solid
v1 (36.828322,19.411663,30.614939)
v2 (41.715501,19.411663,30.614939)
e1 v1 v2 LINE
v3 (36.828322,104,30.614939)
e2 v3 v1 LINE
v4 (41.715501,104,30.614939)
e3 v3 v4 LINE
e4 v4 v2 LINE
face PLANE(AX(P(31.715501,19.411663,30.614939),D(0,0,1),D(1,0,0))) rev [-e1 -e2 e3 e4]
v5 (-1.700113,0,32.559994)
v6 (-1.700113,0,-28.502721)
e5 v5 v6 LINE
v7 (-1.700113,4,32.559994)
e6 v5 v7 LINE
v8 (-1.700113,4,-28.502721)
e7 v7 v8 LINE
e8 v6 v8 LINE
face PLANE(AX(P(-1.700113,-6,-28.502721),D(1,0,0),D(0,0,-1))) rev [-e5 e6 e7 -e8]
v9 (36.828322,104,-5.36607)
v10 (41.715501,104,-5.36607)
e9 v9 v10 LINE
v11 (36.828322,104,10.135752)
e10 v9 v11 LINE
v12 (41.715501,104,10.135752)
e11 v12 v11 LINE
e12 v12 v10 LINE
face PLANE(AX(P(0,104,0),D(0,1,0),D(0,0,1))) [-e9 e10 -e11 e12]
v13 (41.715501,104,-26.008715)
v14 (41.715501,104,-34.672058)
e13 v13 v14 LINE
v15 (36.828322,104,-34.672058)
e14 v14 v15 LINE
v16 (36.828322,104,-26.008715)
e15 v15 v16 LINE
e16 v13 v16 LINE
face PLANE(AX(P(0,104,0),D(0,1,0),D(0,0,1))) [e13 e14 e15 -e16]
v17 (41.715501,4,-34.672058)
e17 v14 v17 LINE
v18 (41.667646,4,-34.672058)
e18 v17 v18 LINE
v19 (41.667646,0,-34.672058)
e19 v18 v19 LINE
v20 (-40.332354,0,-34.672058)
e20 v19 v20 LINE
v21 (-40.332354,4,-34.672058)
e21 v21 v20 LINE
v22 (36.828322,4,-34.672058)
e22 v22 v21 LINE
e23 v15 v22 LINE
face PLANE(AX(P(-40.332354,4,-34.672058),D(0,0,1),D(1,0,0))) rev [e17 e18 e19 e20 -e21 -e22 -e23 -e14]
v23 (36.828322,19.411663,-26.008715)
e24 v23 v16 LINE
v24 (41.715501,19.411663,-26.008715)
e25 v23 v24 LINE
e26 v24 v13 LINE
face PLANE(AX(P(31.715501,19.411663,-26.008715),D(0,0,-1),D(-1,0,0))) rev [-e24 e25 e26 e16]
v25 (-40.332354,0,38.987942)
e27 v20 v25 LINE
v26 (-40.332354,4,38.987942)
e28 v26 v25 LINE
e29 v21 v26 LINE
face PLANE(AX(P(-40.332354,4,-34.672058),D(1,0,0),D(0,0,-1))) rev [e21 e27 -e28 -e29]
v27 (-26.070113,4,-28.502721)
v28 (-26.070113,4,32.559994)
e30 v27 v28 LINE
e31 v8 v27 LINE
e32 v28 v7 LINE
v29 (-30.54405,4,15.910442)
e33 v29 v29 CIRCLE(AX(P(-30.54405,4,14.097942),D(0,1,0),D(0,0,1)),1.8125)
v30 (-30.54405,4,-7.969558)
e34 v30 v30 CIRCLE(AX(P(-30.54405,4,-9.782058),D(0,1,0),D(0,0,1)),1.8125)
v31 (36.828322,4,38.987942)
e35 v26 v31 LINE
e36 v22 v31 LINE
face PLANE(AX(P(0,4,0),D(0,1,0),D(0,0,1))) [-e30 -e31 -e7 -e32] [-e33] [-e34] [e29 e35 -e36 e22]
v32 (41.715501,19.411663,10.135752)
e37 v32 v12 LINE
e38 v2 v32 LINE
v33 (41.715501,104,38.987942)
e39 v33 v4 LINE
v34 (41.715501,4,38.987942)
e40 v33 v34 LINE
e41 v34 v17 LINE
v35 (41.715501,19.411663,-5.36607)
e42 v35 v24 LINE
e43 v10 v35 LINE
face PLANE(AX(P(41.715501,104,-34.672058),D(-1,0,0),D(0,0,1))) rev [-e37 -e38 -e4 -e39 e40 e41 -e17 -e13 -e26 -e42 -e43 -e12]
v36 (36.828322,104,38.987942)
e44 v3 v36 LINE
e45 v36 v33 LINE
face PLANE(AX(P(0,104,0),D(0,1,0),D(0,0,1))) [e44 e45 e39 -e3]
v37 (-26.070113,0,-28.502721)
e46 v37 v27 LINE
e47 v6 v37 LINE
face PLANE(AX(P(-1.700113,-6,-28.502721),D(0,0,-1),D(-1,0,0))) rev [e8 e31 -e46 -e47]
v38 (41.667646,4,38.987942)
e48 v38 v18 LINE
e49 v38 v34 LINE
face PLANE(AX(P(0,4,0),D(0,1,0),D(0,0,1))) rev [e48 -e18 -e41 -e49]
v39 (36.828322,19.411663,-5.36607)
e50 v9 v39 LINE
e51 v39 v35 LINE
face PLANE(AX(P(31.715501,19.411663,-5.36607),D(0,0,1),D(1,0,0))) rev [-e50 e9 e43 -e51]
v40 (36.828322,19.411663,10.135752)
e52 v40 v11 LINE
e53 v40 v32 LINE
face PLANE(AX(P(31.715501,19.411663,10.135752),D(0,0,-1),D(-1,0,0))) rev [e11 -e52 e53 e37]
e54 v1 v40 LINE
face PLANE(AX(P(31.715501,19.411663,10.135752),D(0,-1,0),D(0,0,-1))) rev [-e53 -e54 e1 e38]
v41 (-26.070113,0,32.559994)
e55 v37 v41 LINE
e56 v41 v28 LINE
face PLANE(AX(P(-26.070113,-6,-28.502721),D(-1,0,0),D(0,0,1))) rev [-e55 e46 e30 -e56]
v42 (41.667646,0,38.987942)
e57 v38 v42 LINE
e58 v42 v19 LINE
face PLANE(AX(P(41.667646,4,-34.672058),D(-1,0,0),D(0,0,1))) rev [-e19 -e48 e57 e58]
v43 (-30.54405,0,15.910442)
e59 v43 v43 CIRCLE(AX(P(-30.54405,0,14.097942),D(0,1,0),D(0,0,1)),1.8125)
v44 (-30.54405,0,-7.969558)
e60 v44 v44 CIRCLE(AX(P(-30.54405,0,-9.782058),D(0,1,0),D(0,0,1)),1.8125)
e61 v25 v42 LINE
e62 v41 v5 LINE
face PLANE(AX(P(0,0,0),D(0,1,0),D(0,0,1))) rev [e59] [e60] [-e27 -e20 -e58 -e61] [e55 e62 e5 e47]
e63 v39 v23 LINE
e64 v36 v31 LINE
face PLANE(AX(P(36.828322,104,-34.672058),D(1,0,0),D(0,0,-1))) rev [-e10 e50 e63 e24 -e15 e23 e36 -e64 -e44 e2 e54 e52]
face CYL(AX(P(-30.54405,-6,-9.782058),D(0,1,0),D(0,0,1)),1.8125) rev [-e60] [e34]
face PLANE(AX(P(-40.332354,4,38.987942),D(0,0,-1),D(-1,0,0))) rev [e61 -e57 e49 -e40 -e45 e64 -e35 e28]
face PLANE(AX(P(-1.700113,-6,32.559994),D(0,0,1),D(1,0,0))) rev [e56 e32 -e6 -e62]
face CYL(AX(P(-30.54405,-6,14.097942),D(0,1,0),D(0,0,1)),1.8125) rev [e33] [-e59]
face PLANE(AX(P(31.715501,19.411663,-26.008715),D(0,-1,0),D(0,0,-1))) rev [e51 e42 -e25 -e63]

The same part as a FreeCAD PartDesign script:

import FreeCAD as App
import Part
import Sketcher

V = App.Vector

doc = App.newDocument("Part")
body = doc.addObject("PartDesign::Body", "Body")

# Sketch on XZ plane
sketch1 = body.newObject("Sketcher::SketchObject", "Sketch")
sketch1.AttachmentSupport = (doc.getObject("XZ_Plane"), [""])
sketch1.MapMode = "FlatFace"
sketch1.addGeometry(Part.LineSegment(V(-40, -35, 0), V(-40, 39, 0)), False)
sketch1.addGeometry(Part.LineSegment(V(-40, 39, 0), V(42, 39, 0)), False)
sketch1.addGeometry(Part.LineSegment(V(42, 39, 0), V(42, -35, 0)), False)
sketch1.addGeometry(Part.LineSegment(V(42, -35, 0), V(-40, -35, 0)), False)
sketch1.addConstraint(Sketcher.Constraint("Coincident", 0, 2, 1, 1))
sketch1.addConstraint(Sketcher.Constraint("Coincident", 1, 2, 2, 1))
sketch1.addConstraint(Sketcher.Constraint("Coincident", 2, 2, 3, 1))
sketch1.addConstraint(Sketcher.Constraint("Coincident", 3, 2, 0, 1))
sketch1.addConstraint(Sketcher.Constraint("Vertical", 0))
sketch1.addConstraint(Sketcher.Constraint("Horizontal", 1))
sketch1.addConstraint(Sketcher.Constraint("Vertical", 2))
sketch1.addConstraint(Sketcher.Constraint("Horizontal", 3))
sketch1.addConstraint(Sketcher.Constraint("DistanceX", 1, 1, 1, 2, 82.0))
sketch1.addConstraint(Sketcher.Constraint("DistanceY", 0, 1, 0, 2, 73.66))
sketch1.addConstraint(Sketcher.Constraint("DistanceY", -1, 1, 0, 2, 38.987942))
sketch1.addConstraint(Sketcher.Constraint("DistanceX", 0, 2, -1, 1, 40.332354))
pad1 = body.newObject("PartDesign::Pad", "Pad")
pad1.Profile = sketch1
pad1.Length = 4
pad1.Reversed = True

# Sketch on XZ plane
sketch2 = body.newObject("Sketcher::SketchObject", "Sketch001")
sketch2.AttachmentSupport = (doc.getObject("XZ_Plane"), [""])
sketch2.MapMode = "FlatFace"
sketch2.AttachmentOffset = App.Placement(V(0, 0, -4), App.Rotation())
sketch2.addGeometry(Part.LineSegment(V(36.8, -34.7, 0), V(36.8, 39, 0)), False)
sketch2.addGeometry(Part.LineSegment(V(36.8, 39, 0), V(41.7, 39, 0)), False)
sketch2.addGeometry(Part.LineSegment(V(41.7, 39, 0), V(41.7, -34.7, 0)), False)
sketch2.addGeometry(Part.LineSegment(V(41.7, -34.7, 0), V(36.8, -34.7, 0)), False)
sketch2.addConstraint(Sketcher.Constraint("Coincident", 0, 2, 1, 1))
sketch2.addConstraint(Sketcher.Constraint("Coincident", 1, 2, 2, 1))
sketch2.addConstraint(Sketcher.Constraint("Coincident", 2, 2, 3, 1))
sketch2.addConstraint(Sketcher.Constraint("Coincident", 3, 2, 0, 1))
sketch2.addConstraint(Sketcher.Constraint("Vertical", 0))
sketch2.addConstraint(Sketcher.Constraint("Horizontal", 1))
sketch2.addConstraint(Sketcher.Constraint("Vertical", 2))
sketch2.addConstraint(Sketcher.Constraint("Horizontal", 3))
sketch2.addConstraint(Sketcher.Constraint("DistanceY", 0, 1, 0, 2, 73.66))
sketch2.addConstraint(Sketcher.Constraint("DistanceX", 1, 1, 1, 2, 4.887179))
sketch2.addConstraint(Sketcher.Constraint("DistanceX", -1, 1, 1, 2, 41.715501))
sketch2.addConstraint(Sketcher.Constraint("DistanceY", -1, 1, 0, 2, 38.987942))
pad2 = body.newObject("PartDesign::Pad", "Pad001")
pad2.Profile = sketch2
pad2.Length = 100
pad2.Reversed = True

# Sketch on XZ plane
sketch3 = body.newObject("Sketcher::SketchObject", "Sketch002")
sketch3.AttachmentSupport = (doc.getObject("XZ_Plane"), [""])
sketch3.MapMode = "FlatFace"
sketch3.AttachmentOffset = App.Placement(V(0, 0, -4), App.Rotation())
sketch3.addGeometry(Part.Circle(V(-30.5, -9.8, 0), V(0, 0, 1), 1.8), False)
sketch3.addGeometry(Part.Circle(V(-30.5, 14.1, 0), V(0, 0, 1), 1.8), False)
sketch3.addConstraint(Sketcher.Constraint("Equal", 0, 1))
sketch3.addConstraint(Sketcher.Constraint("Vertical", 0, 3, 1, 3))
sketch3.addConstraint(Sketcher.Constraint("Diameter", 0, 3.625))
sketch3.addConstraint(Sketcher.Constraint("DistanceY", 0, 3, 1, 3, 23.88))
sketch3.addConstraint(Sketcher.Constraint("DistanceX", 0, 3, -1, 1, 30.54405))
sketch3.addConstraint(Sketcher.Constraint("DistanceY", 0, 3, -1, 1, 9.782058))
pocket1 = body.newObject("PartDesign::Pocket", "Pocket")
pocket1.Profile = sketch3
pocket1.Length = 10
pocket1.Reversed = True

# Sketch on XZ plane
sketch4 = body.newObject("Sketcher::SketchObject", "Sketch003")
sketch4.AttachmentSupport = (doc.getObject("XZ_Plane"), [""])
sketch4.MapMode = "FlatFace"
sketch4.AttachmentOffset = App.Placement(V(0, 0, -4), App.Rotation())
sketch4.addGeometry(Part.LineSegment(V(-26, -29, 0), V(-26, 33, 0)), False)
sketch4.addGeometry(Part.LineSegment(V(-26, 33, 0), V(-2, 33, 0)), False)
sketch4.addGeometry(Part.LineSegment(V(-2, 33, 0), V(-2, -29, 0)), False)
sketch4.addGeometry(Part.LineSegment(V(-2, -29, 0), V(-26, -29, 0)), False)
sketch4.addConstraint(Sketcher.Constraint("Coincident", 0, 2, 1, 1))
sketch4.addConstraint(Sketcher.Constraint("Coincident", 1, 2, 2, 1))
sketch4.addConstraint(Sketcher.Constraint("Coincident", 2, 2, 3, 1))
sketch4.addConstraint(Sketcher.Constraint("Coincident", 3, 2, 0, 1))
sketch4.addConstraint(Sketcher.Constraint("Vertical", 0))
sketch4.addConstraint(Sketcher.Constraint("Horizontal", 1))
sketch4.addConstraint(Sketcher.Constraint("Vertical", 2))
sketch4.addConstraint(Sketcher.Constraint("Horizontal", 3))
sketch4.addConstraint(Sketcher.Constraint("DistanceX", 1, 1, 1, 2, 24.37))
sketch4.addConstraint(Sketcher.Constraint("DistanceY", 0, 1, 0, 2, 61.062715))
sketch4.addConstraint(Sketcher.Constraint("DistanceY", 2, 2, -1, 1, 28.502721))
sketch4.addConstraint(Sketcher.Constraint("DistanceX", 0, 2, -1, 1, 26.070113))
pocket2 = body.newObject("PartDesign::Pocket", "Pocket001")
pocket2.Profile = sketch4
pocket2.Length = 10
pocket2.Reversed = True

# Sketch on YZ plane
sketch5 = body.newObject("Sketcher::SketchObject", "Sketch004")
sketch5.AttachmentSupport = (doc.getObject("YZ_Plane"), [""])
sketch5.MapMode = "FlatFace"
sketch5.AttachmentOffset = App.Placement(V(0, 0, 41.715501), App.Rotation())
sketch5.addGeometry(Part.LineSegment(V(121, -5, 0), V(19, -5, 0)), False)
sketch5.addGeometry(Part.LineSegment(V(19, -5, 0), V(19, -26, 0)), False)
sketch5.addGeometry(Part.LineSegment(V(19, -26, 0), V(121, -26, 0)), False)
sketch5.addGeometry(Part.LineSegment(V(121, -26, 0), V(121, -5, 0)), False)
sketch5.addGeometry(Part.LineSegment(V(120, 31, 0), V(19, 31, 0)), False)
sketch5.addGeometry(Part.LineSegment(V(19, 31, 0), V(19, 10, 0)), False)
sketch5.addGeometry(Part.LineSegment(V(19, 10, 0), V(120, 10, 0)), False)
sketch5.addGeometry(Part.LineSegment(V(120, 10, 0), V(120, 31, 0)), False)
sketch5.addConstraint(Sketcher.Constraint("Coincident", 0, 2, 1, 1))
sketch5.addConstraint(Sketcher.Constraint("Coincident", 1, 2, 2, 1))
sketch5.addConstraint(Sketcher.Constraint("Coincident", 2, 2, 3, 1))
sketch5.addConstraint(Sketcher.Constraint("Coincident", 3, 2, 0, 1))
sketch5.addConstraint(Sketcher.Constraint("Coincident", 4, 2, 5, 1))
sketch5.addConstraint(Sketcher.Constraint("Coincident", 5, 2, 6, 1))
sketch5.addConstraint(Sketcher.Constraint("Coincident", 6, 2, 7, 1))
sketch5.addConstraint(Sketcher.Constraint("Coincident", 7, 2, 4, 1))
sketch5.addConstraint(Sketcher.Constraint("Horizontal", 0))
sketch5.addConstraint(Sketcher.Constraint("Vertical", 1))
sketch5.addConstraint(Sketcher.Constraint("Horizontal", 2))
sketch5.addConstraint(Sketcher.Constraint("Vertical", 3))
sketch5.addConstraint(Sketcher.Constraint("Horizontal", 4))
sketch5.addConstraint(Sketcher.Constraint("Vertical", 5))
sketch5.addConstraint(Sketcher.Constraint("Horizontal", 6))
sketch5.addConstraint(Sketcher.Constraint("Vertical", 7))
sketch5.addConstraint(Sketcher.Constraint("Vertical", 1, 2, 4, 2))
sketch5.addConstraint(Sketcher.Constraint("DistanceX", -1, 1, 2, 2, 120.541498))
sketch5.addConstraint(Sketcher.Constraint("DistanceX", 0, 2, 0, 1, 101.129836))
sketch5.addConstraint(Sketcher.Constraint("DistanceX", 4, 2, 4, 1, 100.180376))
sketch5.addConstraint(Sketcher.Constraint("DistanceY", 1, 2, 1, 1, 20.642646))
sketch5.addConstraint(Sketcher.Constraint("DistanceY", 5, 2, 5, 1, 20.479188))
sketch5.addConstraint(Sketcher.Constraint("DistanceY", 0, 2, -1, 1, 5.36607))
sketch5.addConstraint(Sketcher.Constraint("DistanceY", -1, 1, 4, 2, 30.614939))
pocket3 = body.newObject("PartDesign::Pocket", "Pocket002")
pocket3.Profile = sketch5
pocket3.Length = 10

doc.recompute()
